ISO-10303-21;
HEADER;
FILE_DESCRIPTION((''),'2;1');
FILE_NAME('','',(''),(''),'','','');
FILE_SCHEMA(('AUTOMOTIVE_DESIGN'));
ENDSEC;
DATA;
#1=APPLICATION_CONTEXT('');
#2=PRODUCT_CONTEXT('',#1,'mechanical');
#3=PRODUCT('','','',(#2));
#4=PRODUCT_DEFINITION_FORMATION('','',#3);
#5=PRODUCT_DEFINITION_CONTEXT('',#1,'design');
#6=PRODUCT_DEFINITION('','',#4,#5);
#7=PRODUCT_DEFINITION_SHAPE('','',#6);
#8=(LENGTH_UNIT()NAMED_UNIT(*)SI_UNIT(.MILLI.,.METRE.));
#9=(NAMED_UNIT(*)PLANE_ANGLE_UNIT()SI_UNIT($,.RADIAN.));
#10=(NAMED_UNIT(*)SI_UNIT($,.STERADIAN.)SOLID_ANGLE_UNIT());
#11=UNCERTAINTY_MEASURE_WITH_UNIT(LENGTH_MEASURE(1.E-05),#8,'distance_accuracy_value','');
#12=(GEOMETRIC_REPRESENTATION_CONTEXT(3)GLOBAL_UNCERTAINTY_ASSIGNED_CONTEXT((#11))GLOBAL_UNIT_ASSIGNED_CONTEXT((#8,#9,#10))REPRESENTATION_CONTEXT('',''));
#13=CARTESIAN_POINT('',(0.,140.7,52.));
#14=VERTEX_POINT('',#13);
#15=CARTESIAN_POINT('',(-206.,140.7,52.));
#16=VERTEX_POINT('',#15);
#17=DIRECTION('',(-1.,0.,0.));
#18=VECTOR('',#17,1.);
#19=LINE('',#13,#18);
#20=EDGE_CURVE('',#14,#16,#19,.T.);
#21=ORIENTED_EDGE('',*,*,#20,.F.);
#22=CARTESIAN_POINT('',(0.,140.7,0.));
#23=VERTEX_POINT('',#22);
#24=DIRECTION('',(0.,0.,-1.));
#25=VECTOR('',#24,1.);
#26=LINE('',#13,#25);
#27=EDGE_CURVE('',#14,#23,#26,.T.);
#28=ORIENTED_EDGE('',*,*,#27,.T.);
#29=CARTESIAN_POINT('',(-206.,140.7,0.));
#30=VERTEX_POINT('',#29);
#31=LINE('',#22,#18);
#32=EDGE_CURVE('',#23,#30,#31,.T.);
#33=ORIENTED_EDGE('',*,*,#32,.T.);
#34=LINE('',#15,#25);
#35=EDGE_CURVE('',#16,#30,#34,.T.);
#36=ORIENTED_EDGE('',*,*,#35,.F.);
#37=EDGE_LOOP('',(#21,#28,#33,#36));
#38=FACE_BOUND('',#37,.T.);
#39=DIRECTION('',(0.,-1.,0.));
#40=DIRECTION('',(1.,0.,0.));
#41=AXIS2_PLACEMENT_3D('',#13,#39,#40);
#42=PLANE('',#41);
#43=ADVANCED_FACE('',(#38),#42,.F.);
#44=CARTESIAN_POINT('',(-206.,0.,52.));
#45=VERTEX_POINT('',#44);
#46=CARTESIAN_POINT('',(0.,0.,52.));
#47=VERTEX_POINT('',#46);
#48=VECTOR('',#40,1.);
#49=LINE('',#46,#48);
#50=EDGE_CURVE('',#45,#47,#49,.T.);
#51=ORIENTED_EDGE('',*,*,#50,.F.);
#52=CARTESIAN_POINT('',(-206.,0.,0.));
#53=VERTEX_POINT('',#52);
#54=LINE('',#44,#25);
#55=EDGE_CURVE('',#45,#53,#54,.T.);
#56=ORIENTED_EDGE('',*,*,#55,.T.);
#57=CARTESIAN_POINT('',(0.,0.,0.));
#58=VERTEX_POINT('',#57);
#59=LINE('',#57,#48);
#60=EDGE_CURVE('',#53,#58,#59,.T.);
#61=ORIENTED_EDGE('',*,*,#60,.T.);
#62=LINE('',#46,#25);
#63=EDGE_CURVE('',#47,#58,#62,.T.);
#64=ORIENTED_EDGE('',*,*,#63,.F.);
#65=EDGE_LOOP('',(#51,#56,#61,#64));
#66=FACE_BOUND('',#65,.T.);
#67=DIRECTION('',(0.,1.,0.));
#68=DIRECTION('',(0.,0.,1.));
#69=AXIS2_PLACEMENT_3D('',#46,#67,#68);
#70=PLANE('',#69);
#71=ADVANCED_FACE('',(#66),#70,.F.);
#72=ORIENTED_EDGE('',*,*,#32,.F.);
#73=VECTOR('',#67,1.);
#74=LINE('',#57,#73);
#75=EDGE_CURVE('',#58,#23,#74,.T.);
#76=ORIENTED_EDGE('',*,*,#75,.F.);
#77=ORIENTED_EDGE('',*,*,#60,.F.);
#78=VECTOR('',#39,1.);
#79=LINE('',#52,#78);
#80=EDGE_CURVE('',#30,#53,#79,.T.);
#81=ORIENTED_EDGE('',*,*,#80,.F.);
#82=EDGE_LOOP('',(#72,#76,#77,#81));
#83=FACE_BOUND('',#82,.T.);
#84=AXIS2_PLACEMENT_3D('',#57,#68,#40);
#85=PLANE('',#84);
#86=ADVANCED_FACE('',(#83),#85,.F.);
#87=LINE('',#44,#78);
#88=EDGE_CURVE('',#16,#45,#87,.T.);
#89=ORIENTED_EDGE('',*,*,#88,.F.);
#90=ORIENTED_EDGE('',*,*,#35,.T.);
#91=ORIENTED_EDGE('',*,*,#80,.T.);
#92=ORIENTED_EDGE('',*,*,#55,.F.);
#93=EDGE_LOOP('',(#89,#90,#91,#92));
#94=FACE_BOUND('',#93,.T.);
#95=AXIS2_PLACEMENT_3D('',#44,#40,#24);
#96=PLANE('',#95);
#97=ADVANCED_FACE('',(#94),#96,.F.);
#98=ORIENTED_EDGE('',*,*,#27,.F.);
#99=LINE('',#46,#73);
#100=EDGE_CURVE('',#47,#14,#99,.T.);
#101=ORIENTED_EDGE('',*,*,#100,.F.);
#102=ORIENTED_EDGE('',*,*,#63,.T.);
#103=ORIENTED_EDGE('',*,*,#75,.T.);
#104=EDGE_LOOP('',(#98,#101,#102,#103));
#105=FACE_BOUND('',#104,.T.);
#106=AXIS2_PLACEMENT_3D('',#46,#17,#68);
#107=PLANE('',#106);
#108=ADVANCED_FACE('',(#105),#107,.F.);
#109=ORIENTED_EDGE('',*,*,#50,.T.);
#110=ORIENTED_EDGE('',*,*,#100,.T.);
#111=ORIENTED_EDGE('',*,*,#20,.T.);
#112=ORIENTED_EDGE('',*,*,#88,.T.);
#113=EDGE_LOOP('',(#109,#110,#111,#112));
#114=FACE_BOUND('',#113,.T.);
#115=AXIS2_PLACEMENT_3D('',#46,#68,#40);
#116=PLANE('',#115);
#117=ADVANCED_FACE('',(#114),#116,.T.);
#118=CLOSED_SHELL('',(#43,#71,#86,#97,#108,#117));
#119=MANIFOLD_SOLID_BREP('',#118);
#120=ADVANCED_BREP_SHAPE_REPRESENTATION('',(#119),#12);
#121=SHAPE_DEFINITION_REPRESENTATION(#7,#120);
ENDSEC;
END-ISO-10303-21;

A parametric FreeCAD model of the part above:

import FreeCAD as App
import Part
import Sketcher
Q = App.Units.Quantity

doc = App.newDocument("Part")
body = doc.addObject("PartDesign::Body", "Body")

sketch1 = doc.addObject("Sketcher::SketchObject", "Sketch")
body.addObject(sketch1)
sketch1.AttachmentSupport = (doc.XY_Plane, [""])
sketch1.MapMode = "FlatFace"
sketch1.addGeometry([
    Part.LineSegment(App.Vector(-206, 140.7, 0), App.Vector(-206, 0, 0)),
    Part.LineSegment(App.Vector(-206, 0, 0), App.Vector(0, 0, 0)),
    Part.LineSegment(App.Vector(0, 0, 0), App.Vector(0, 140.7, 0)),
    Part.LineSegment(App.Vector(0, 140.7, 0), App.Vector(-206, 140.7, 0)),
], False)
sketch1.addConstraint([
    Sketcher.Constraint("Coincident", 0, 2, 1, 1),
    Sketcher.Constraint("Coincident", 1, 2, 2, 1),
    Sketcher.Constraint("Coincident", 2, 2, 3, 1),
    Sketcher.Constraint("Coincident", 3, 2, 0, 1),
    Sketcher.Constraint("Vertical", 0),
    Sketcher.Constraint("Horizontal", 1),
    Sketcher.Constraint("Vertical", 2),
    Sketcher.Constraint("Horizontal", 3),
    Sketcher.Constraint("Coincident", 1, 2, -1, 1),
    Sketcher.Constraint("DistanceX", 1, 1, 1, 2, Q("206 mm")),
    Sketcher.Constraint("DistanceY", 0, 2, 0, 1, Q("140.7 mm")),
])
pad1 = doc.addObject("PartDesign::Pad", "Pad")
body.addObject(pad1)
pad1.Profile = sketch1
pad1.Length = 52

doc.recompute()
